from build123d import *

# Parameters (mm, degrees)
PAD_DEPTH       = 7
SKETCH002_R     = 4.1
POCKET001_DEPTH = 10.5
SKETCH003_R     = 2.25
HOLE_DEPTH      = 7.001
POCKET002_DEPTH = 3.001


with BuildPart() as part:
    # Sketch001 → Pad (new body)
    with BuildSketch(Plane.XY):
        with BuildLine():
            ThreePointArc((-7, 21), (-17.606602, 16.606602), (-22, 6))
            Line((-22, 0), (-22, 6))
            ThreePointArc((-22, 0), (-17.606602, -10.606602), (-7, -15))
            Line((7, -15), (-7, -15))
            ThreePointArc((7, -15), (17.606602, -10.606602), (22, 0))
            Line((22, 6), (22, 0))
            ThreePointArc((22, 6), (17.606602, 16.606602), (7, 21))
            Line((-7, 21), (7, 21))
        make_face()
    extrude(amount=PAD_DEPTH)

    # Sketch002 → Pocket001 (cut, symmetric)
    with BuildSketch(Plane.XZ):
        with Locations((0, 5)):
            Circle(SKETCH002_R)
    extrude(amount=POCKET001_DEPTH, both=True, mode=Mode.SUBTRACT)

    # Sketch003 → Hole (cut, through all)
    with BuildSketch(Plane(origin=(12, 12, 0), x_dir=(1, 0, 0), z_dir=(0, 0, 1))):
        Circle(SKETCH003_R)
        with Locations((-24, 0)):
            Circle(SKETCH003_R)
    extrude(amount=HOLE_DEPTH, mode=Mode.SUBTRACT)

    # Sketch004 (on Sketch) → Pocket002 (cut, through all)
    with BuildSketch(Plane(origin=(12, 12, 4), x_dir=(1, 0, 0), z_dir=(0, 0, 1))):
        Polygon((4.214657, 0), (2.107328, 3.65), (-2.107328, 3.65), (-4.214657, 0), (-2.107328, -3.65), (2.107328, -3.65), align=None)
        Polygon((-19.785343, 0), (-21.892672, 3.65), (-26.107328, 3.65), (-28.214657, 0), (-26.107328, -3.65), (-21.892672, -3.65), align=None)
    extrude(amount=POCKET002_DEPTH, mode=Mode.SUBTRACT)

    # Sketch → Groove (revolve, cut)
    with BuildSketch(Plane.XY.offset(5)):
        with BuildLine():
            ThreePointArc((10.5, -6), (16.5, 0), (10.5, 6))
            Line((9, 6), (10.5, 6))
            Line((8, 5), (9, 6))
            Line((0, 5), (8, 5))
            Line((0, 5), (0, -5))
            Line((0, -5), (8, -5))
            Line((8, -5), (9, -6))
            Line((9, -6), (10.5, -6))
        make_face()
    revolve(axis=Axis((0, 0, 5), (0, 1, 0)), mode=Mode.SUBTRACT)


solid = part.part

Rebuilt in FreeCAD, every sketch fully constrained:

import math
import FreeCAD as App
import Part
import Sketcher

V = App.Vector
Q = App.Units.Quantity


def add_polygon(sketch, points):
    """Adds a closed chain of lines whose ends are joined by coincident constraints."""
    first, n = sketch.GeometryCount, len(points)
    for a, b in zip(points, points[1:] + points[:1]):
        sketch.addGeometry(Part.LineSegment(App.Vector(*a, 0), App.Vector(*b, 0)), False)
    for i in range(n):
        sketch.addConstraint(Sketcher.Constraint("Coincident", first + i, 2, first + (i + 1) % n, 1))

doc = App.newDocument("Part")
body = doc.addObject("PartDesign::Body", "Body")

# Sketch on XY plane
sketch1 = body.newObject("Sketcher::SketchObject", "Sketch")
sketch1.AttachmentSupport = (doc.getObject("XY_Plane"), [""])
sketch1.MapMode = "FlatFace"
sketch1.addGeometry(Part.ArcOfCircle(Part.Circle(V(-7, 6, 0), V(0, 0, 1), 15), math.radians(90), math.radians(180)), False)
sketch1.addGeometry(Part.LineSegment(V(-22, 6, 0), V(-22, 0, 0)), False)
sketch1.addGeometry(Part.ArcOfCircle(Part.Circle(V(-7, 0, 0), V(0, 0, 1), 15), math.radians(180), math.radians(270)), False)
sketch1.addGeometry(Part.LineSegment(V(-7, -15, 0), V(7, -15, 0)), False)
sketch1.addGeometry(Part.ArcOfCircle(Part.Circle(V(7, 0, 0), V(0, 0, 1), 15), math.radians(-90), math.radians(0)), False)
sketch1.addGeometry(Part.LineSegment(V(22, 0, 0), V(22, 6, 0)), False)
sketch1.addGeometry(Part.ArcOfCircle(Part.Circle(V(7, 6, 0), V(0, 0, 1), 15), math.radians(0), math.radians(90)), False)
sketch1.addGeometry(Part.LineSegment(V(7, 21, 0), V(-7, 21, 0)), False)
sketch1.addConstraint(Sketcher.Constraint("Tangent", 0, 2, 1, 1))
sketch1.addConstraint(Sketcher.Constraint("Tangent", 1, 2, 2, 1))
sketch1.addConstraint(Sketcher.Constraint("Tangent", 2, 2, 3, 1))
sketch1.addConstraint(Sketcher.Constraint("Tangent", 3, 2, 4, 1))
sketch1.addConstraint(Sketcher.Constraint("Tangent", 4, 2, 5, 1))
sketch1.addConstraint(Sketcher.Constraint("Tangent", 5, 2, 6, 1))
sketch1.addConstraint(Sketcher.Constraint("Tangent", 6, 2, 7, 1))
sketch1.addConstraint(Sketcher.Constraint("Tangent", 7, 2, 0, 1))
sketch1.addConstraint(Sketcher.Constraint("Vertical", 1))
sketch1.addConstraint(Sketcher.Constraint("Horizontal", 3))
sketch1.addConstraint(Sketcher.Constraint("Vertical", 5))
sketch1.addConstraint(Sketcher.Constraint("Horizontal", 7))
sketch1.addConstraint(Sketcher.Constraint("Equal", 0, 2))
sketch1.addConstraint(Sketcher.Constraint("Equal", 2, 4))
sketch1.addConstraint(Sketcher.Constraint("Equal", 4, 6))
sketch1.addConstraint(Sketcher.Constraint("Symmetric", 2, 3, 4, 3, -1, 1))
sketch1.addConstraint(Sketcher.Constraint("Radius", 0, Q("14.999999 mm")))
sketch1.addConstraint(Sketcher.Constraint("DistanceX", 3, 1, 3, 2, Q("14 mm")))
sketch1.addConstraint(Sketcher.Constraint("DistanceY", 1, 2, 1, 1, Q("6 mm")))
pad1 = body.newObject("PartDesign::Pad", "Pad")
pad1.Profile = sketch1
pad1.Length = 7

# Sketch on XZ plane
sketch2 = body.newObject("Sketcher::SketchObject", "Sketch001")
sketch2.AttachmentSupport = (doc.getObject("XZ_Plane"), [""])
sketch2.MapMode = "FlatFace"
sketch2.addGeometry(Part.Circle(V(0, 5, 0), V(0, 0, 1), 4.1), False)
sketch2.addConstraint(Sketcher.Constraint("PointOnObject", 0, 3, -2))
sketch2.addConstraint(Sketcher.Constraint("Diameter", 0, Q("8.2 mm")))
sketch2.addConstraint(Sketcher.Constraint("DistanceY", -1, 1, 0, 3, Q("5 mm")))
pocket1 = body.newObject("PartDesign::Pocket", "Pocket")
pocket1.Profile = sketch2
pocket1.Length = 21
pocket1.Midplane = True

# Sketch on XY plane
sketch3 = body.newObject("Sketcher::SketchObject", "Sketch002")
sketch3.AttachmentSupport = (doc.getObject("XY_Plane"), [""])
sketch3.MapMode = "FlatFace"
sketch3.addGeometry(Part.Circle(V(12, 12, 0), V(0, 0, 1), 2.2), False)
sketch3.addGeometry(Part.Circle(V(-12, 12, 0), V(0, 0, 1), 2.2), False)
sketch3.addConstraint(Sketcher.Constraint("Equal", 0, 1))
sketch3.addConstraint(Sketcher.Constraint("Symmetric", 0, 3, 1, 3, -2))
sketch3.addConstraint(Sketcher.Constraint("Diameter", 0, Q("4.5 mm")))
sketch3.addConstraint(Sketcher.Constraint("DistanceX", -1, 1, 0, 3, Q("12 mm")))
sketch3.addConstraint(Sketcher.Constraint("DistanceY", -1, 1, 0, 3, Q("12 mm")))
pocket2 = body.newObject("PartDesign::Pocket", "Pocket001")
pocket2.Profile = sketch3
pocket2.Type = "ThroughAll"
pocket2.Reversed = True

# Sketch on XY plane
sketch4 = body.newObject("Sketcher::SketchObject", "Sketch003")
sketch4.AttachmentSupport = (doc.getObject("XY_Plane"), [""])
sketch4.MapMode = "FlatFace"
sketch4.AttachmentOffset = App.Placement(V(0, 0, 4), App.Rotation())
add_polygon(sketch4, [(16.2, 12), (14.1, 15.7), (9.9, 15.7), (7.8, 12), (9.9, 8.3), (14.1, 8.3)])  # lines 0-5
add_polygon(sketch4, [(-7.8, 12), (-9.9, 15.7), (-14.1, 15.7), (-16.2, 12), (-14.1, 8.3), (-9.9, 8.3)])  # lines 6-11
sketch4.addConstraint(Sketcher.Constraint("Horizontal", 1))
sketch4.addConstraint(Sketcher.Constraint("Horizontal", 4))
sketch4.addConstraint(Sketcher.Constraint("Horizontal", 7))
sketch4.addConstraint(Sketcher.Constraint("Horizontal", 10))
sketch4.addConstraint(Sketcher.Constraint("Symmetric", 1, 2, 6, 2, -2))
sketch4.addConstraint(Sketcher.Constraint("Symmetric", 5, 2, 8, 2, -2))
sketch4.addConstraint(Sketcher.Constraint("Symmetric", 4, 2, 9, 2, -2))
sketch4.addConstraint(Sketcher.Constraint("Symmetric", 2, 2, 11, 2, -2))
sketch4.addConstraint(Sketcher.Constraint("Parallel", 0, 3))
sketch4.addConstraint(Sketcher.Constraint("Parallel", 2, 5))
sketch4.addConstraint(Sketcher.Constraint("Parallel", 3, 6))
sketch4.addConstraint(Sketcher.Constraint("Parallel", 5, 8))
sketch4.addConstraint(Sketcher.Constraint("Parallel", 8, 11))
sketch4.addConstraint(Sketcher.Constraint("Horizontal", 2, 2, 5, 2))
sketch4.addConstraint(Sketcher.Constraint("Vertical", 1, 2, 3, 2))
sketch4.addConstraint(Sketcher.Constraint("Angle", 0, Q("120.000006 deg")))
sketch4.addConstraint(Sketcher.Constraint("DistanceY", -1, 1, 2, 2, Q("12 mm")))
sketch4.addConstraint(Sketcher.Constraint("DistanceX", 6, 2, 0, 2, Q("24 mm")))
sketch4.addConstraint(Sketcher.Constraint("DistanceY", 3, 2, 1, 2, Q("7.3 mm")))
sketch4.addConstraint(Sketcher.Constraint("DistanceX", 1, 2, 1, 1, Q("4.214656 mm")))
pocket3 = body.newObject("PartDesign::Pocket", "Pocket002")
pocket3.Profile = sketch4
pocket3.Type = "ThroughAll"
pocket3.Reversed = True

# Sketch on XY plane
sketch5 = body.newObject("Sketcher::SketchObject", "Sketch004")
sketch5.AttachmentSupport = (doc.getObject("XY_Plane"), [""])
sketch5.MapMode = "FlatFace"
sketch5.AttachmentOffset = App.Placement(V(0, 0, 5), App.Rotation())
sketch5.addGeometry(Part.ArcOfCircle(Part.Circle(V(10.5, 0, 0), V(0, 0, 1), 6), math.radians(-90), math.radians(90)), False)
sketch5.addGeometry(Part.LineSegment(V(10.5, 6, 0), V(9, 6, 0)), False)
sketch5.addGeometry(Part.LineSegment(V(9, 6, 0), V(8, 5, 0)), False)
sketch5.addGeometry(Part.LineSegment(V(8, 5, 0), V(0, 5, 0)), False)
sketch5.addGeometry(Part.LineSegment(V(0, 5, 0), V(0, -5, 0)), False)
sketch5.addGeometry(Part.LineSegment(V(0, -5, 0), V(8, -5, 0)), False)
sketch5.addGeometry(Part.LineSegment(V(8, -5, 0), V(9, -6, 0)), False)
sketch5.addGeometry(Part.LineSegment(V(9, -6, 0), V(10.5, -6, 0)), False)
sketch5.addConstraint(Sketcher.Constraint("Tangent", 0, 2, 1, 1))
sketch5.addConstraint(Sketcher.Constraint("Coincident", 1, 2, 2, 1))
sketch5.addConstraint(Sketcher.Constraint("Coincident", 2, 2, 3, 1))
sketch5.addConstraint(Sketcher.Constraint("Coincident", 3, 2, 4, 1))
sketch5.addConstraint(Sketcher.Constraint("Coincident", 4, 2, 5, 1))
sketch5.addConstraint(Sketcher.Constraint("Coincident", 5, 2, 6, 1))
sketch5.addConstraint(Sketcher.Constraint("Coincident", 6, 2, 7, 1))
sketch5.addConstraint(Sketcher.Constraint("Tangent", 7, 2, 0, 1))
sketch5.addConstraint(Sketcher.Constraint("Horizontal", 1))
sketch5.addConstraint(Sketcher.Constraint("Horizontal", 3))
sketch5.addConstraint(Sketcher.Constraint("Vertical", 4))
sketch5.addConstraint(Sketcher.Constraint("Horizontal", 5))
sketch5.addConstraint(Sketcher.Constraint("Horizontal", 7))
sketch5.addConstraint(Sketcher.Constraint("Symmetric", 3, 2, 4, 2, -1, 1))
sketch5.addConstraint(Sketcher.Constraint("Symmetric", 1, 2, 6, 2, -1))
sketch5.addConstraint(Sketcher.Constraint("Perpendicular", 2, 6))
sketch5.addConstraint(Sketcher.Constraint("Vertical", 2, 2, 5, 2))
sketch5.addConstraint(Sketcher.Constraint("Radius", 0, Q("6 mm")))
sketch5.addConstraint(Sketcher.Constraint("DistanceX", 3, 2, 3, 1, Q("8 mm")))
sketch5.addConstraint(Sketcher.Constraint("DistanceY", 4, 2, 4, 1, Q("10 mm")))
sketch5.addConstraint(Sketcher.Constraint("DistanceX", 1, 2, 1, 1, Q("1.5 mm")))
groove = body.newObject("PartDesign::Groove", "Groove")
groove.Profile = sketch5
groove.ReferenceAxis = (sketch5, ["V_Axis"])
groove.Angle = 360

doc.recompute()
